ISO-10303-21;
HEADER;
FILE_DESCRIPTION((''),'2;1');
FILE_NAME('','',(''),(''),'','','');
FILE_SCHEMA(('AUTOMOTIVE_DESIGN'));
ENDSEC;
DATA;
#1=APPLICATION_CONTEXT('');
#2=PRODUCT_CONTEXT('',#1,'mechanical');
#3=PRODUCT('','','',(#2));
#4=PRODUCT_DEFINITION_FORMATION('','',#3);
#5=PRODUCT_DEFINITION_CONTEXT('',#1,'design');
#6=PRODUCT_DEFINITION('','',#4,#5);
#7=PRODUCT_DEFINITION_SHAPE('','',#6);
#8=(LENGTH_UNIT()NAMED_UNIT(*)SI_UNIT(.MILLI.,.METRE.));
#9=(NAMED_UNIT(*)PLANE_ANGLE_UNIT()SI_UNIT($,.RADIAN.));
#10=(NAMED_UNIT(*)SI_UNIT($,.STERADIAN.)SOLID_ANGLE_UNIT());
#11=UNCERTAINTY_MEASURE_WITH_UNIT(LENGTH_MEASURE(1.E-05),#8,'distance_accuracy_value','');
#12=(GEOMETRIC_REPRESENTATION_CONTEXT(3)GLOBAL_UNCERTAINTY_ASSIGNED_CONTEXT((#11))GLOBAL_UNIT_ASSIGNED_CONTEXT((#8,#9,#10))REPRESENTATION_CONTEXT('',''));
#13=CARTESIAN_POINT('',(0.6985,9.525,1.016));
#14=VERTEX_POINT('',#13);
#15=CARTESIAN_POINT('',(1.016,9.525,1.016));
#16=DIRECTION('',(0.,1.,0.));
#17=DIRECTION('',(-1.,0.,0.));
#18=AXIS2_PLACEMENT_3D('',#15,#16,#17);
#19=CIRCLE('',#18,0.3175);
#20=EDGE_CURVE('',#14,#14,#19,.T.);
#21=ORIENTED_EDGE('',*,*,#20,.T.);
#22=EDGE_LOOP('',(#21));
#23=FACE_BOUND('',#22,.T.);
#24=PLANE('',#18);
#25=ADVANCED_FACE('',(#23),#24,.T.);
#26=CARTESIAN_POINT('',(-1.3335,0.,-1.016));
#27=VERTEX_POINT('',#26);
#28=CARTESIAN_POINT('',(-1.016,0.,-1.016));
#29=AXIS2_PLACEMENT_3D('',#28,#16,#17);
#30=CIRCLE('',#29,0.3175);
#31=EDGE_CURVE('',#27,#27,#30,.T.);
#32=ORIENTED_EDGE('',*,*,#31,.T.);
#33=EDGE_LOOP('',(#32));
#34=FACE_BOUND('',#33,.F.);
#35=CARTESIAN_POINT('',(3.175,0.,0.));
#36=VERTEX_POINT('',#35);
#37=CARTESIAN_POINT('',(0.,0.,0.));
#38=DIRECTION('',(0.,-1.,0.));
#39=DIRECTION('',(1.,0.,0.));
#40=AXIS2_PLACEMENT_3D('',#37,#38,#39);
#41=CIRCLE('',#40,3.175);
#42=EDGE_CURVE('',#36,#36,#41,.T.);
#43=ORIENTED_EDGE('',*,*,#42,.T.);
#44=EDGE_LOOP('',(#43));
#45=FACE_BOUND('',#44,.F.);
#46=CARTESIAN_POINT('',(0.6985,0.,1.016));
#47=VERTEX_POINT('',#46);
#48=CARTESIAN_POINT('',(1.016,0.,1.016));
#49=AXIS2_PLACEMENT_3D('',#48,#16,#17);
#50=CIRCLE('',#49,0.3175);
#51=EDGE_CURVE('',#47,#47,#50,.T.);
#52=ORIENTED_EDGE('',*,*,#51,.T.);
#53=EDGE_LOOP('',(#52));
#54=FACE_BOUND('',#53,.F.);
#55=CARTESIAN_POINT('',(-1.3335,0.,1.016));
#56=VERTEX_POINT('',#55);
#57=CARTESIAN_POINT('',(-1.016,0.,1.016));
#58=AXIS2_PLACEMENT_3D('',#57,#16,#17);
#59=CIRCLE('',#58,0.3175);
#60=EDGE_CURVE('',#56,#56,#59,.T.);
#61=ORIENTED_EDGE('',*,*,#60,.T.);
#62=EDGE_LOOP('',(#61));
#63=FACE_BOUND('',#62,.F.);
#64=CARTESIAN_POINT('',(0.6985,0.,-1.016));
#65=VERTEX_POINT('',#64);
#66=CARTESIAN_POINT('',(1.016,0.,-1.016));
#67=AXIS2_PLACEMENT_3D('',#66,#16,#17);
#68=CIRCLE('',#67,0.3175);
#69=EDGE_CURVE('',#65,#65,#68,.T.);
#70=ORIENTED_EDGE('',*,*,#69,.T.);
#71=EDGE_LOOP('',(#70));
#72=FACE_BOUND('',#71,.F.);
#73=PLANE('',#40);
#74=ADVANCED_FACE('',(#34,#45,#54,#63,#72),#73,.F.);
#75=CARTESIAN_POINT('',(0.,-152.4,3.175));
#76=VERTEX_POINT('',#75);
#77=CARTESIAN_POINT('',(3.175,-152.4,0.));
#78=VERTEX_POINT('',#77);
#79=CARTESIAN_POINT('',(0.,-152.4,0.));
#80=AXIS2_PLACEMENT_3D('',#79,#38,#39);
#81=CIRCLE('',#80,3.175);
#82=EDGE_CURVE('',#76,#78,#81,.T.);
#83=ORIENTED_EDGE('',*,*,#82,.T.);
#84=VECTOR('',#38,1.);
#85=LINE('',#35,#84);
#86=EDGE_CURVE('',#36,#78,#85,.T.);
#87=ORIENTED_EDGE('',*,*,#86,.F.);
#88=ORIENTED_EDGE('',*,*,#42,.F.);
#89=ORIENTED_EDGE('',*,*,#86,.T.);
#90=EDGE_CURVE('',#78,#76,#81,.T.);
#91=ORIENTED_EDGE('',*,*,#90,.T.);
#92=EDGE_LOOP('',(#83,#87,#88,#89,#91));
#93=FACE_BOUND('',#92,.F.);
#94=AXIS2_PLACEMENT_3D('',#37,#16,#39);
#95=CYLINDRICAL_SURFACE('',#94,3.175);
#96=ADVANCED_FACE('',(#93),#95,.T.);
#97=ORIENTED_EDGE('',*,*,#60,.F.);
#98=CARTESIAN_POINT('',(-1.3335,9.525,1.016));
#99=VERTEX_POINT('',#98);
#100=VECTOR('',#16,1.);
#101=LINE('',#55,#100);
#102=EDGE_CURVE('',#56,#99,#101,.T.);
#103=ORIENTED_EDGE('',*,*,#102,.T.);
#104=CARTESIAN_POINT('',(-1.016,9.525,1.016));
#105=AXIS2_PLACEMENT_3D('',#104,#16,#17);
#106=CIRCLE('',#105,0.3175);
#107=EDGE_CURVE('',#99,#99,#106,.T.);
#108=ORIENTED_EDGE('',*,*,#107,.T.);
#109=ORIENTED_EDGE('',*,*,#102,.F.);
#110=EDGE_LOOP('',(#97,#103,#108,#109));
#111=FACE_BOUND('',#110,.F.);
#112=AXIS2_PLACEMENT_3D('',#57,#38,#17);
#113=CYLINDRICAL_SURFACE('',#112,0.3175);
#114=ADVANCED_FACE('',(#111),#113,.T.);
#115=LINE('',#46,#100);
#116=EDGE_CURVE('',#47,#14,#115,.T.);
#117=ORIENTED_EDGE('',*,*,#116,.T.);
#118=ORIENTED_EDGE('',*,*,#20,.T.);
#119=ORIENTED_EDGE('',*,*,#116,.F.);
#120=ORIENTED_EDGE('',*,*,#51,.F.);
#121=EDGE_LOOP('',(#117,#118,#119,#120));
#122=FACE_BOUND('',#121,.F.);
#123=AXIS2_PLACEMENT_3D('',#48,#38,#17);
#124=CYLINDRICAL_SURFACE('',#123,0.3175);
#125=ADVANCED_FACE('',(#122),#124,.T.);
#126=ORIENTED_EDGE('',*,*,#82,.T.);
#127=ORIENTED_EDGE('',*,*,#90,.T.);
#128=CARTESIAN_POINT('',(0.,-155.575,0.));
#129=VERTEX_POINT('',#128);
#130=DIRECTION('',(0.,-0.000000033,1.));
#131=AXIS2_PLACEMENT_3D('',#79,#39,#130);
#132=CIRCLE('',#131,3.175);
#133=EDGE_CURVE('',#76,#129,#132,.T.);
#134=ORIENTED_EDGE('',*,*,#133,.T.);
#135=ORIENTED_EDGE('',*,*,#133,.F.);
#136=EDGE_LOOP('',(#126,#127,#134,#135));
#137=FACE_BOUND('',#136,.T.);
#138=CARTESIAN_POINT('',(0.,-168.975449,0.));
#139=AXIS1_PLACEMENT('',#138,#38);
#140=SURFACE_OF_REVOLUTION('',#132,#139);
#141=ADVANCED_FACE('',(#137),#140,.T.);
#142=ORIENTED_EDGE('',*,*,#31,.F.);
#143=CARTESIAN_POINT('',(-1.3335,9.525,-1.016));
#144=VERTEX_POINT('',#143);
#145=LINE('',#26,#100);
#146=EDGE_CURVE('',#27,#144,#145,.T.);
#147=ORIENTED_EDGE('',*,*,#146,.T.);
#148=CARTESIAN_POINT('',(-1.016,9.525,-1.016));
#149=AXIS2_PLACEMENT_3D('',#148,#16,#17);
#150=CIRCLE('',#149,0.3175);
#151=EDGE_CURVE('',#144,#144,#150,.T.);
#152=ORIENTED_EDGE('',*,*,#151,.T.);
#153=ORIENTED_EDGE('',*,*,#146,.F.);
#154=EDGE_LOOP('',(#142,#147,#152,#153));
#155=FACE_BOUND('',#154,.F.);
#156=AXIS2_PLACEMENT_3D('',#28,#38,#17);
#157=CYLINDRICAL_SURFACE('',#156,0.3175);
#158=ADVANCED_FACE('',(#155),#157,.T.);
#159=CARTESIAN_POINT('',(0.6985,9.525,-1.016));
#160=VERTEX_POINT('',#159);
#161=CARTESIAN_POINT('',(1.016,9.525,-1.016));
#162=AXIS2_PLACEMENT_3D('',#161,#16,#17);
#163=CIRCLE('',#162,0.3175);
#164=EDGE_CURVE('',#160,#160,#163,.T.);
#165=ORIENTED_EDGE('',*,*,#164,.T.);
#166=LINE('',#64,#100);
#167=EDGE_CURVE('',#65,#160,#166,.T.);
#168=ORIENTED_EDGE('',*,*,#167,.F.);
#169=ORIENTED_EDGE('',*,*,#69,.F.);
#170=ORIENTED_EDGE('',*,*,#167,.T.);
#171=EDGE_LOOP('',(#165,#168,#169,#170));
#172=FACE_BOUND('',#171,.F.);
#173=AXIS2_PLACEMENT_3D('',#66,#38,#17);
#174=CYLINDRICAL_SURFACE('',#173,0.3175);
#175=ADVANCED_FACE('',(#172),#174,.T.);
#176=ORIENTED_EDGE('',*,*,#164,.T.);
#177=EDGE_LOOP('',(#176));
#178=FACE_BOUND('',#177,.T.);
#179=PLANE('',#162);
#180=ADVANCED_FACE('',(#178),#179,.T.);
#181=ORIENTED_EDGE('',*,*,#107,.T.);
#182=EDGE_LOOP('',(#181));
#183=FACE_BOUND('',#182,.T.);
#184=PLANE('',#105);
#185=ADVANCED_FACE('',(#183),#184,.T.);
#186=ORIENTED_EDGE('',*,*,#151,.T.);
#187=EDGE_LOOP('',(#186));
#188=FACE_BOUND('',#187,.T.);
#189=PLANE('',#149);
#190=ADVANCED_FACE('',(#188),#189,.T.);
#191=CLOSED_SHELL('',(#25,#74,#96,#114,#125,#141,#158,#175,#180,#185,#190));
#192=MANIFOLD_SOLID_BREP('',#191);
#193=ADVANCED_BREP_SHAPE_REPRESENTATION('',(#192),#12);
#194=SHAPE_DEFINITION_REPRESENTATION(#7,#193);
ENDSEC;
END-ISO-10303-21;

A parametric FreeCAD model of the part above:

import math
import FreeCAD as App
import Part
import Sketcher
Q = App.Units.Quantity

doc = App.newDocument("Part")
params = doc.addObject("Spreadsheet::Sheet", "Params")
for row, (alias, value) in enumerate([
    ("sketch1_diameter", "0.25 in"),
    ("pad1_length", "6 in"),
    ("sketch2_radius", "0.125 in"),
    ("revolution_angle", "360 deg"),
    ("sketch3_diameter", "0.025 in"),
    ("pad2_length", "0.375 in"),
], start=1):
    params.set(f"A{row}", alias)
    params.set(f"B{row}", "=" + value)
    params.setAlias(f"B{row}", alias)

body = doc.addObject("PartDesign::Body", "Body")

# Sketch on XZ plane
sketch1 = body.newObject("Sketcher::SketchObject", "Sketch")
sketch1.AttachmentSupport = (doc.getObject("XZ_Plane"), [""])
sketch1.MapMode = "FlatFace"
sketch1.addGeometry(Part.Circle(App.Vector(0, 0, 0), App.Vector(0, 0, 1), 3.2), False)
sketch1.addConstraint(Sketcher.Constraint("Coincident", 0, 3, -1, 1))
sketch1.addConstraint(Sketcher.Constraint("Diameter", 0, Q("0.25 in")))
sketch1.setExpression("Constraints[1]", "Params.sketch1_diameter")
pad1 = body.newObject("PartDesign::Pad", "Pad")
pad1.Profile = sketch1
pad1.setExpression("Length", "Params.pad1_length")

# Sketch on YZ plane
sketch2 = body.newObject("Sketcher::SketchObject", "Sketch001")
sketch2.AttachmentSupport = (doc.getObject("YZ_Plane"), [""])
sketch2.MapMode = "FlatFace"
sketch2.addGeometry(Part.LineSegment(App.Vector(-152.4, 0, 0), App.Vector(-152.4, 3.2, 0)), False)
sketch2.addGeometry(Part.ArcOfCircle(Part.Circle(App.Vector(-152.4, 0, 0), App.Vector(0, 0, 1), 3.2), math.radians(90), math.radians(180)), False)
sketch2.addGeometry(Part.LineSegment(App.Vector(-155.6, 0, 0), App.Vector(-152.4, 0, 0)), False)
sketch2.addConstraint(Sketcher.Constraint("Coincident", 0, 2, 1, 1))
sketch2.addConstraint(Sketcher.Constraint("Coincident", 1, 2, 2, 1))
sketch2.addConstraint(Sketcher.Constraint("Coincident", 2, 2, 0, 1))
sketch2.addConstraint(Sketcher.Constraint("Vertical", 0))
sketch2.addConstraint(Sketcher.Constraint("Horizontal", 2))
sketch2.addConstraint(Sketcher.Constraint("Coincident", 2, 2, 1, 3))
sketch2.addConstraint(Sketcher.Constraint("PointOnObject", 1, 3, -1))
sketch2.addConstraint(Sketcher.Constraint("DistanceX", 1, 3, -1, 1, Q("6 in")))
sketch2.addConstraint(Sketcher.Constraint("Radius", 1, Q("0.125 in")))
sketch2.setExpression("Constraints[8]", "Params.sketch2_radius")
revolution = body.newObject("PartDesign::Revolution", "Revolution")
revolution.Profile = sketch2
revolution.ReferenceAxis = (sketch2, ["H_Axis"])
revolution.setExpression("Angle", "Params.revolution_angle")

# Sketch on XZ plane
sketch3 = body.newObject("Sketcher::SketchObject", "Sketch002")
sketch3.AttachmentSupport = (doc.getObject("XZ_Plane"), [""])
sketch3.MapMode = "FlatFace"
sketch3.addGeometry(Part.Circle(App.Vector(-1.02, -1.02, 0), App.Vector(0, 0, 1), 0.32), False)
sketch3.addGeometry(Part.Circle(App.Vector(1.02, -1.02, 0), App.Vector(0, 0, 1), 0.32), False)
sketch3.addGeometry(Part.Circle(App.Vector(-1.02, 1.02, 0), App.Vector(0, 0, 1), 0.32), False)
sketch3.addGeometry(Part.Circle(App.Vector(1.02, 1.02, 0), App.Vector(0, 0, 1), 0.32), False)
sketch3.addConstraint(Sketcher.Constraint("Equal", 0, 1))
sketch3.addConstraint(Sketcher.Constraint("Equal", 1, 2))
sketch3.addConstraint(Sketcher.Constraint("Equal", 2, 3))
sketch3.addConstraint(Sketcher.Constraint("Symmetric", 1, 3, 2, 3, -1, 1))
sketch3.addConstraint(Sketcher.Constraint("Symmetric", 0, 3, 3, 3, -1, 1))
sketch3.addConstraint(Sketcher.Constraint("Symmetric", 0, 3, 1, 3, -2))
sketch3.addConstraint(Sketcher.Constraint("Diameter", 0, Q("0.025 in")))
sketch3.addConstraint(Sketcher.Constraint("DistanceX", 0, 3, -1, 1, Q("0.04 in")))
sketch3.addConstraint(Sketcher.Constraint("DistanceY", 0, 3, -1, 1, Q("0.04 in")))
sketch3.setExpression("Constraints[6]", "Params.sketch3_diameter")
pad2 = body.newObject("PartDesign::Pad", "Pad001")
pad2.Profile = sketch3
pad2.setExpression("Length", "Params.pad2_length")
pad2.Reversed = True

doc.recompute()
